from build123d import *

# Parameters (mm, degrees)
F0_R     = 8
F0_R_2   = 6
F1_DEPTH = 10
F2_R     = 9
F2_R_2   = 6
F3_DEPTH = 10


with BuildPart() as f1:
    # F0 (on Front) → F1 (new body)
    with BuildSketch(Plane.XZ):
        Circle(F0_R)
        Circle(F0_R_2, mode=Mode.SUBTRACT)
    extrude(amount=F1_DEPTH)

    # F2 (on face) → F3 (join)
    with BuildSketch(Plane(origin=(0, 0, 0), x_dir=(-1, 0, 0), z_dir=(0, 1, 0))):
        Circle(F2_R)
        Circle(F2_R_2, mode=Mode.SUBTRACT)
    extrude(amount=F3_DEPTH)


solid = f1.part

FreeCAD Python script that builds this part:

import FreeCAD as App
import Part
import Sketcher

V = App.Vector

doc = App.newDocument("Part")
params = doc.addObject("Spreadsheet::Sheet", "Params")
for row, (alias, value) in enumerate([
    ("sketch1_diameter", "16 mm"),
    ("sketch1_diameter2", "12 mm"),
    ("pad1_length", "10 mm"),
    ("sketch2_diameter", "18 mm"),
    ("sketch2_diameter2", "12 mm"),
    ("pad2_length", "10 mm"),
], start=1):
    params.set(f"A{row}", alias)
    params.set(f"B{row}", "=" + value)
    params.setAlias(f"B{row}", alias)

body = doc.addObject("PartDesign::Body", "Body")

sketch1 = doc.addObject("Sketcher::SketchObject", "Sketch")
body.addObject(sketch1)
sketch1.AttachmentSupport = (doc.XZ_Plane, [""])
sketch1.MapMode = "FlatFace"
sketch1.addGeometry(Part.Circle(V(0, 0, 0), V(0, 0, 1), 8), False)
sketch1.addGeometry(Part.Circle(V(0, 0, 0), V(0, 0, 1), 6), False)
sketch1.addConstraint(Sketcher.Constraint("Coincident", 0, 3, -1, 1))
sketch1.addConstraint(Sketcher.Constraint("Coincident", 1, 3, -1, 1))
sketch1.addConstraint(Sketcher.Constraint("Diameter", 0, 16.0))
sketch1.addConstraint(Sketcher.Constraint("Diameter", 1, 12.0))
sketch1.setExpression("Constraints[2]", "Params.sketch1_diameter")
sketch1.setExpression("Constraints[3]", "Params.sketch1_diameter2")
pad1 = doc.addObject("PartDesign::Pad", "Pad")
body.addObject(pad1)
pad1.Profile = sketch1
pad1.setExpression("Length", "Params.pad1_length")

sketch2 = doc.addObject("Sketcher::SketchObject", "Sketch001")
body.addObject(sketch2)
sketch2.AttachmentSupport = (doc.XZ_Plane, [""])
sketch2.MapMode = "FlatFace"
sketch2.addGeometry(Part.Circle(V(0, 0, 0), V(0, 0, 1), 9), False)
sketch2.addGeometry(Part.Circle(V(0, 0, 0), V(0, 0, 1), 6), False)
sketch2.addConstraint(Sketcher.Constraint("Coincident", 0, 3, -1, 1))
sketch2.addConstraint(Sketcher.Constraint("Coincident", 1, 3, -1, 1))
sketch2.addConstraint(Sketcher.Constraint("Diameter", 0, 18.0))
sketch2.addConstraint(Sketcher.Constraint("Diameter", 1, 12.0))
sketch2.setExpression("Constraints[2]", "Params.sketch2_diameter")
sketch2.setExpression("Constraints[3]", "Params.sketch2_diameter2")
pad2 = doc.addObject("PartDesign::Pad", "Pad001")
body.addObject(pad2)
pad2.Profile = sketch2
pad2.setExpression("Length", "Params.pad2_length")
pad2.Reversed = True

doc.recompute()
